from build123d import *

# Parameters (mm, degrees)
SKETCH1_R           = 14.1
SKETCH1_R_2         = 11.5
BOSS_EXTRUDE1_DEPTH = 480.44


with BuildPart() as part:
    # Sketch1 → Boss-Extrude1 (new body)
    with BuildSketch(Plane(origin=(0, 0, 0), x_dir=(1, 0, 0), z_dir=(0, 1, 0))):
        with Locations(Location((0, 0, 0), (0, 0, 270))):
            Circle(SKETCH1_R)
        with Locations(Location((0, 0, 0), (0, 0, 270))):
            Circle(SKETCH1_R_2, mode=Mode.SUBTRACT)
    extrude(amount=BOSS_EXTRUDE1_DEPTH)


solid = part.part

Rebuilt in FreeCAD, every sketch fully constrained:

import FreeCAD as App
import Part
import Sketcher

V = App.Vector
Q = App.Units.Quantity

doc = App.newDocument("Part")
body = doc.addObject("PartDesign::Body", "Body")

sketch1 = doc.addObject("Sketcher::SketchObject", "Sketch")
body.addObject(sketch1)
sketch1.AttachmentSupport = (doc.XZ_Plane, [""])
sketch1.MapMode = "FlatFace"
sketch1.addGeometry([
    Part.Circle(V(0, 0, 0), V(0, 0, 1), 14),
    Part.Circle(V(0, 0, 0), V(0, 0, 1), 12),
], False)
sketch1.addConstraint([
    Sketcher.Constraint("Coincident", 0, 3, -1, 1),
    Sketcher.Constraint("Coincident", 1, 3, -1, 1),
    Sketcher.Constraint("Diameter", 1, Q("23 mm")),
    Sketcher.Constraint("Diameter", 0, Q("28.2 mm")),
])
pad1 = doc.addObject("PartDesign::Pad", "Pad")
body.addObject(pad1)
pad1.Profile = sketch1
pad1.Length = 480.44
pad1.Reversed = True

doc.recompute()
